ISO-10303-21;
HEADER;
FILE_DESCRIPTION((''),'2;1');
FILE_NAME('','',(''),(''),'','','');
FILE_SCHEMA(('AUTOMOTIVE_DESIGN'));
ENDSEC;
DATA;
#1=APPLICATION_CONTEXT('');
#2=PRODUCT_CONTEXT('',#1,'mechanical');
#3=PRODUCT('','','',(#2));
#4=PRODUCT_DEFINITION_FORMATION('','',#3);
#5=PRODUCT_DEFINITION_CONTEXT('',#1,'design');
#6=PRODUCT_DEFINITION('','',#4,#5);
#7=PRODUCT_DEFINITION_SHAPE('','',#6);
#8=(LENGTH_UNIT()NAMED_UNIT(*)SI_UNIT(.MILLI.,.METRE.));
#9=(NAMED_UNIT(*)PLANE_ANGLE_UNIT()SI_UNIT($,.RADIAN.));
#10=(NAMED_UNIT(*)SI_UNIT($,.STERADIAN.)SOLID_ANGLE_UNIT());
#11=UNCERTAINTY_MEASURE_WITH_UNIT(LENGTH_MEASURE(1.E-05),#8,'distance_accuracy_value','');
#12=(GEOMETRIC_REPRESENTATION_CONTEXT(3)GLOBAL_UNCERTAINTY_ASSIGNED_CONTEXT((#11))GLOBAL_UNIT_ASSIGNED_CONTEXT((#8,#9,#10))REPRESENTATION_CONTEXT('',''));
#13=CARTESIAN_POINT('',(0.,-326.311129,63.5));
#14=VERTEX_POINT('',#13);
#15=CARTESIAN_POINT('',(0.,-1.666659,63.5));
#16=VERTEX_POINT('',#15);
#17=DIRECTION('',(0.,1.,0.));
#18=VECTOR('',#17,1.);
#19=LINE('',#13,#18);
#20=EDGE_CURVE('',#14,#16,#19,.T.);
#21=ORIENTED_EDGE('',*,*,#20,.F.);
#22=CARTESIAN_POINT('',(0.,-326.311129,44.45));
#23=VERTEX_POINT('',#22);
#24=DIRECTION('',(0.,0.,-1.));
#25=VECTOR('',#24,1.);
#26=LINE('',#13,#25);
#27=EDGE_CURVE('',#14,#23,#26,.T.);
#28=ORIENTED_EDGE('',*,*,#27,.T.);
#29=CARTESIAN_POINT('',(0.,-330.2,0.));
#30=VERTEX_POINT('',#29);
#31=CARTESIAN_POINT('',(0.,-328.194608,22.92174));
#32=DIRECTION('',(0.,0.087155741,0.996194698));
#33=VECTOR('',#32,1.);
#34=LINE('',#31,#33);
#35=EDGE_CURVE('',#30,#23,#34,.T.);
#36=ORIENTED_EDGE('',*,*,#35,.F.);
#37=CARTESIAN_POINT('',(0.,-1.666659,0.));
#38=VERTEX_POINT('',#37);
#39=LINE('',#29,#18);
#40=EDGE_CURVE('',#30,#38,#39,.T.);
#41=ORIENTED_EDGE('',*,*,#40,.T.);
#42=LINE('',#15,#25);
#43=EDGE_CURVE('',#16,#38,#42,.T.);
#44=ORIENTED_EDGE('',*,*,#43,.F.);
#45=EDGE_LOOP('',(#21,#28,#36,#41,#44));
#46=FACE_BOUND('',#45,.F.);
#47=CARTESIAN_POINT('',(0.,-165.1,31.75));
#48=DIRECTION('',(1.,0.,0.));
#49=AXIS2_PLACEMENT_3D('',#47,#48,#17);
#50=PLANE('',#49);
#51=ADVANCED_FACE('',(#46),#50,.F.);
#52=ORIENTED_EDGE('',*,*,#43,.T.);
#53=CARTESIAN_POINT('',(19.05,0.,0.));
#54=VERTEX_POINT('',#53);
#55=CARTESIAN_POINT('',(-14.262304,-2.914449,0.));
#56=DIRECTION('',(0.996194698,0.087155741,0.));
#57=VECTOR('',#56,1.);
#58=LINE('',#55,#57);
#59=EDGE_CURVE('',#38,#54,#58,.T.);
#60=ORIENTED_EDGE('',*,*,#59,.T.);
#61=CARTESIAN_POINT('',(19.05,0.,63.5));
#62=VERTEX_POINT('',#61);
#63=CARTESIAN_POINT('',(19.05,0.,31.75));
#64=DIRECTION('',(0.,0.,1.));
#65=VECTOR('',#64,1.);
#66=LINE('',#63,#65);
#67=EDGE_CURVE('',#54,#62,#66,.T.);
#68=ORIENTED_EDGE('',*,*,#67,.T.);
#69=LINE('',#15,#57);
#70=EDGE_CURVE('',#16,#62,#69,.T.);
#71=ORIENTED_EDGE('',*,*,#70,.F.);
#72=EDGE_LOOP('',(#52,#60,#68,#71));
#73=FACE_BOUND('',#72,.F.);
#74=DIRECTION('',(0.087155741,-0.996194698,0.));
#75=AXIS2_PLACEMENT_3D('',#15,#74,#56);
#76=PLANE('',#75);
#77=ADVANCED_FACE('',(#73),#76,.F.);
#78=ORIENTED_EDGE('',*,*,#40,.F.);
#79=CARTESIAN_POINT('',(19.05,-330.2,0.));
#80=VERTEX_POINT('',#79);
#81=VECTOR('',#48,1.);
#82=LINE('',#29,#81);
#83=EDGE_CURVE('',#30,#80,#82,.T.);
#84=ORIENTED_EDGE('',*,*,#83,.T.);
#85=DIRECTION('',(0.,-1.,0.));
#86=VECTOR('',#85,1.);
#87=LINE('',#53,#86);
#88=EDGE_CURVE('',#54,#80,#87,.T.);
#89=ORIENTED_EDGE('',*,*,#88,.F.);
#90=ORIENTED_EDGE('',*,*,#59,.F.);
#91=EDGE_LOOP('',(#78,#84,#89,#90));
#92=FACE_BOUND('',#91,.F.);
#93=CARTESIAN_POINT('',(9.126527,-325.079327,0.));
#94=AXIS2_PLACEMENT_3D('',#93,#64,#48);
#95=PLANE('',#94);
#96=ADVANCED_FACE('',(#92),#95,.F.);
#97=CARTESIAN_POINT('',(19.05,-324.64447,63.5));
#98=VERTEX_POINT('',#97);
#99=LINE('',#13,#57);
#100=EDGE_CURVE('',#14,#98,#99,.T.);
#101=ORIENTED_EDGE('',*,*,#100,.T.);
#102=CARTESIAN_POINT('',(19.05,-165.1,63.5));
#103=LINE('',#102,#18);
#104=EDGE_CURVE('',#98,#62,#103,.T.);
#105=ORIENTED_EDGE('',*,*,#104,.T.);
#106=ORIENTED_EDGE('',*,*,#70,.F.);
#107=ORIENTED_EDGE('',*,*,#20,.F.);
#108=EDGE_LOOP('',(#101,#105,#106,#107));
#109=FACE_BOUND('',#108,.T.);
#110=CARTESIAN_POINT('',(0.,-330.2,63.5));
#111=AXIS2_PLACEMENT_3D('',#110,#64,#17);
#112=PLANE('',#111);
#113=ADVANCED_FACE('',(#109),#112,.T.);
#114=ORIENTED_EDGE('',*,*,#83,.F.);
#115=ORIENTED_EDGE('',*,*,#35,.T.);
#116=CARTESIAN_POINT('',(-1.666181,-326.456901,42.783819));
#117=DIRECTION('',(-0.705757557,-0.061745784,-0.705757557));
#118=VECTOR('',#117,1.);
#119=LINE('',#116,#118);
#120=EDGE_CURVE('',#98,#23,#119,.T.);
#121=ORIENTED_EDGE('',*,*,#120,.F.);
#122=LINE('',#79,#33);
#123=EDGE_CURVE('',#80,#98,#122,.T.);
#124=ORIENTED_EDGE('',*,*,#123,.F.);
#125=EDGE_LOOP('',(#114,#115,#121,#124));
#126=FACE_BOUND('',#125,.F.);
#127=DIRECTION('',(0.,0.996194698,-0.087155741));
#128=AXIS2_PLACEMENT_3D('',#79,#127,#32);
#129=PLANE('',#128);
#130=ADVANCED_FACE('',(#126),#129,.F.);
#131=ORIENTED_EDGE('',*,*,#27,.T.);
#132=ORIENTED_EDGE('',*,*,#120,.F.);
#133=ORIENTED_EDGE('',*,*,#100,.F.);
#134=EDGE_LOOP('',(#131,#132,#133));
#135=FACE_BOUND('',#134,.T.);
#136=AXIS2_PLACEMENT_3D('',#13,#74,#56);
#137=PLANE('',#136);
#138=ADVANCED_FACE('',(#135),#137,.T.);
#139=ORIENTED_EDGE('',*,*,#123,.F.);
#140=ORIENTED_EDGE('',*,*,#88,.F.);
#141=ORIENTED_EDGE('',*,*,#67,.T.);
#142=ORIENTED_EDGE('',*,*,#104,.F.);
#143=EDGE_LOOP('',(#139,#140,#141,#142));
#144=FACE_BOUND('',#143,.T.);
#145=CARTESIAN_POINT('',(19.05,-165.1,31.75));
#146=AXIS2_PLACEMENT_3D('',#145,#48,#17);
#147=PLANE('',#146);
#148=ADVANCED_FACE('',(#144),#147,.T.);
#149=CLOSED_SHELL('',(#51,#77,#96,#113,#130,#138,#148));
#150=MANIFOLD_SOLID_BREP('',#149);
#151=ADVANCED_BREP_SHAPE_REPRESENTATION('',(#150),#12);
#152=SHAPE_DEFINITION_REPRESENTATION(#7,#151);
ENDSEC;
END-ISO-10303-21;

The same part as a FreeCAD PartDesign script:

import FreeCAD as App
import Part
import Sketcher
from FreeCAD import Vector
Q = App.Units.Quantity

doc = App.newDocument("Part")
body = doc.addObject("PartDesign::Body", "Body")

sketch1 = body.newObject("Sketcher::SketchObject", "Sketch")
sketch1.AttachmentSupport = (doc.getObject("YZ_Plane"), [""])
sketch1.MapMode = "FlatFace"
sketch1.addGeometry(Part.LineSegment(Vector(-330, 64, 0), Vector(-330, 0, 0)), False)
sketch1.addGeometry(Part.LineSegment(Vector(-330, 0, 0), Vector(0, 0, 0)), False)
sketch1.addGeometry(Part.LineSegment(Vector(0, 0, 0), Vector(0, 64, 0)), False)
sketch1.addGeometry(Part.LineSegment(Vector(0, 64, 0), Vector(-330, 64, 0)), False)
sketch1.addConstraint(Sketcher.Constraint("Coincident", 0, 2, 1, 1))
sketch1.addConstraint(Sketcher.Constraint("Coincident", 1, 2, 2, 1))
sketch1.addConstraint(Sketcher.Constraint("Coincident", 2, 2, 3, 1))
sketch1.addConstraint(Sketcher.Constraint("Coincident", 3, 2, 0, 1))
sketch1.addConstraint(Sketcher.Constraint("Vertical", 0))
sketch1.addConstraint(Sketcher.Constraint("Horizontal", 1))
sketch1.addConstraint(Sketcher.Constraint("Vertical", 2))
sketch1.addConstraint(Sketcher.Constraint("Horizontal", 3))
sketch1.addConstraint(Sketcher.Constraint("Coincident", 1, 2, -1, 1))
sketch1.addConstraint(Sketcher.Constraint("DistanceX", 1, 1, 1, 2, Q("13 in")))
sketch1.addConstraint(Sketcher.Constraint("DistanceY", 0, 2, 0, 1, Q("2.5 in")))
pad1 = body.newObject("PartDesign::Pad", "Pad")
pad1.Profile = sketch1
pad1.Length = Q("0.75 in")

sketch2 = body.newObject("Sketcher::SketchObject", "Sketch001")
sketch2.AttachmentSupport = (doc.getObject("XY_Plane"), [""])
sketch2.MapMode = "FlatFace"
sketch2.AttachmentOffset = App.Placement(Vector(0, 0, 2.5 * 25.4), App.Rotation())
sketch2.addGeometry(Part.LineSegment(Vector(0, -1.7, 0), Vector(19.1, 0, 0)), False)
sketch2.addGeometry(Part.LineSegment(Vector(19.1, 0, 0), Vector(0, 0, 0)), False)
sketch2.addGeometry(Part.LineSegment(Vector(0, 0, 0), Vector(0, -1.7, 0)), False)
sketch2.addConstraint(Sketcher.Constraint("Coincident", 0, 2, 1, 1))
sketch2.addConstraint(Sketcher.Constraint("Coincident", 1, 2, 2, 1))
sketch2.addConstraint(Sketcher.Constraint("Coincident", 2, 2, 0, 1))
sketch2.addConstraint(Sketcher.Constraint("Horizontal", 1))
sketch2.addConstraint(Sketcher.Constraint("Vertical", 2))
sketch2.addConstraint(Sketcher.Constraint("Coincident", 1, 2, -1, 1))
sketch2.addConstraint(Sketcher.Constraint("Angle", 0, Q("5 deg")))
sketch2.addConstraint(Sketcher.Constraint("DistanceX", 1, 2, 1, 1, Q("0.75 in")))
pocket1 = body.newObject("PartDesign::Pocket", "Pocket")
pocket1.Profile = sketch2
pocket1.Type = "ThroughAll"

sketch3 = body.newObject("Sketcher::SketchObject", "Sketch002")
sketch3.AttachmentSupport = (doc.getObject("YZ_Plane"), [""])
sketch3.MapMode = "FlatFace"
sketch3.AttachmentOffset = App.Placement(Vector(0, 0, 0.75 * 25.4), App.Rotation())
sketch3.addGeometry(Part.LineSegment(Vector(-325, 64, 0), Vector(-330, 64, 0)), False)
sketch3.addGeometry(Part.LineSegment(Vector(-330, 64, 0), Vector(-330, 0, 0)), False)
sketch3.addGeometry(Part.LineSegment(Vector(-330, 0, 0), Vector(-325, 64, 0)), False)
sketch3.addConstraint(Sketcher.Constraint("Coincident", 0, 2, 1, 1))
sketch3.addConstraint(Sketcher.Constraint("Coincident", 1, 2, 2, 1))
sketch3.addConstraint(Sketcher.Constraint("Coincident", 2, 2, 0, 1))
sketch3.addConstraint(Sketcher.Constraint("Horizontal", 0))
sketch3.addConstraint(Sketcher.Constraint("Vertical", 1))
sketch3.addConstraint(Sketcher.Constraint("PointOnObject", 1, 2, -1))
sketch3.addConstraint(Sketcher.Constraint("DistanceY", 1, 2, 1, 1, Q("2.5 in")))
sketch3.addConstraint(Sketcher.Constraint("DistanceX", 0, 2, -1, 1, Q("13 in")))
sketch3.addConstraint(Sketcher.Constraint("Angle", 2, Q("85 deg")))
pocket2 = body.newObject("PartDesign::Pocket", "Pocket001")
pocket2.Profile = sketch3
pocket2.Type = "ThroughAll"

sketch4 = body.newObject("Sketcher::SketchObject", "Sketch003")
sketch4.AttachmentSupport = (doc.getObject("XY_Plane"), [""])
sketch4.MapMode = "FlatFace"
sketch4.AttachmentOffset = App.Placement(Vector(0, 0, 2.5 * 25.4), App.Rotation())
sketch4.addGeometry(Part.LineSegment(Vector(19.1, -324.6, 0), Vector(0, -324.6, 0)), False)
sketch4.addGeometry(Part.LineSegment(Vector(0, -324.6, 0), Vector(0, -326.3, 0)), False)
sketch4.addGeometry(Part.LineSegment(Vector(0, -326.3, 0), Vector(19.1, -324.6, 0)), False)
sketch4.addConstraint(Sketcher.Constraint("Coincident", 0, 2, 1, 1))
sketch4.addConstraint(Sketcher.Constraint("Coincident", 1, 2, 2, 1))
sketch4.addConstraint(Sketcher.Constraint("Coincident", 2, 2, 0, 1))
sketch4.addConstraint(Sketcher.Constraint("Horizontal", 0))
sketch4.addConstraint(Sketcher.Constraint("Vertical", 1))
sketch4.addConstraint(Sketcher.Constraint("PointOnObject", 0, 2, -2))
sketch4.addConstraint(Sketcher.Constraint("Angle", 2, Q("5 deg")))
sketch4.addConstraint(Sketcher.Constraint("DistanceX", 0, 2, 0, 1, Q("0.75 in")))
sketch4.addConstraint(Sketcher.Constraint("DistanceY", 0, 2, -1, 1, 324.64447))
pad2 = body.newObject("PartDesign::Pad", "Pad001")
pad2.Profile = sketch4
pad2.Length = Q("2.5 in")
pad2.Reversed = True

doc.recompute()
